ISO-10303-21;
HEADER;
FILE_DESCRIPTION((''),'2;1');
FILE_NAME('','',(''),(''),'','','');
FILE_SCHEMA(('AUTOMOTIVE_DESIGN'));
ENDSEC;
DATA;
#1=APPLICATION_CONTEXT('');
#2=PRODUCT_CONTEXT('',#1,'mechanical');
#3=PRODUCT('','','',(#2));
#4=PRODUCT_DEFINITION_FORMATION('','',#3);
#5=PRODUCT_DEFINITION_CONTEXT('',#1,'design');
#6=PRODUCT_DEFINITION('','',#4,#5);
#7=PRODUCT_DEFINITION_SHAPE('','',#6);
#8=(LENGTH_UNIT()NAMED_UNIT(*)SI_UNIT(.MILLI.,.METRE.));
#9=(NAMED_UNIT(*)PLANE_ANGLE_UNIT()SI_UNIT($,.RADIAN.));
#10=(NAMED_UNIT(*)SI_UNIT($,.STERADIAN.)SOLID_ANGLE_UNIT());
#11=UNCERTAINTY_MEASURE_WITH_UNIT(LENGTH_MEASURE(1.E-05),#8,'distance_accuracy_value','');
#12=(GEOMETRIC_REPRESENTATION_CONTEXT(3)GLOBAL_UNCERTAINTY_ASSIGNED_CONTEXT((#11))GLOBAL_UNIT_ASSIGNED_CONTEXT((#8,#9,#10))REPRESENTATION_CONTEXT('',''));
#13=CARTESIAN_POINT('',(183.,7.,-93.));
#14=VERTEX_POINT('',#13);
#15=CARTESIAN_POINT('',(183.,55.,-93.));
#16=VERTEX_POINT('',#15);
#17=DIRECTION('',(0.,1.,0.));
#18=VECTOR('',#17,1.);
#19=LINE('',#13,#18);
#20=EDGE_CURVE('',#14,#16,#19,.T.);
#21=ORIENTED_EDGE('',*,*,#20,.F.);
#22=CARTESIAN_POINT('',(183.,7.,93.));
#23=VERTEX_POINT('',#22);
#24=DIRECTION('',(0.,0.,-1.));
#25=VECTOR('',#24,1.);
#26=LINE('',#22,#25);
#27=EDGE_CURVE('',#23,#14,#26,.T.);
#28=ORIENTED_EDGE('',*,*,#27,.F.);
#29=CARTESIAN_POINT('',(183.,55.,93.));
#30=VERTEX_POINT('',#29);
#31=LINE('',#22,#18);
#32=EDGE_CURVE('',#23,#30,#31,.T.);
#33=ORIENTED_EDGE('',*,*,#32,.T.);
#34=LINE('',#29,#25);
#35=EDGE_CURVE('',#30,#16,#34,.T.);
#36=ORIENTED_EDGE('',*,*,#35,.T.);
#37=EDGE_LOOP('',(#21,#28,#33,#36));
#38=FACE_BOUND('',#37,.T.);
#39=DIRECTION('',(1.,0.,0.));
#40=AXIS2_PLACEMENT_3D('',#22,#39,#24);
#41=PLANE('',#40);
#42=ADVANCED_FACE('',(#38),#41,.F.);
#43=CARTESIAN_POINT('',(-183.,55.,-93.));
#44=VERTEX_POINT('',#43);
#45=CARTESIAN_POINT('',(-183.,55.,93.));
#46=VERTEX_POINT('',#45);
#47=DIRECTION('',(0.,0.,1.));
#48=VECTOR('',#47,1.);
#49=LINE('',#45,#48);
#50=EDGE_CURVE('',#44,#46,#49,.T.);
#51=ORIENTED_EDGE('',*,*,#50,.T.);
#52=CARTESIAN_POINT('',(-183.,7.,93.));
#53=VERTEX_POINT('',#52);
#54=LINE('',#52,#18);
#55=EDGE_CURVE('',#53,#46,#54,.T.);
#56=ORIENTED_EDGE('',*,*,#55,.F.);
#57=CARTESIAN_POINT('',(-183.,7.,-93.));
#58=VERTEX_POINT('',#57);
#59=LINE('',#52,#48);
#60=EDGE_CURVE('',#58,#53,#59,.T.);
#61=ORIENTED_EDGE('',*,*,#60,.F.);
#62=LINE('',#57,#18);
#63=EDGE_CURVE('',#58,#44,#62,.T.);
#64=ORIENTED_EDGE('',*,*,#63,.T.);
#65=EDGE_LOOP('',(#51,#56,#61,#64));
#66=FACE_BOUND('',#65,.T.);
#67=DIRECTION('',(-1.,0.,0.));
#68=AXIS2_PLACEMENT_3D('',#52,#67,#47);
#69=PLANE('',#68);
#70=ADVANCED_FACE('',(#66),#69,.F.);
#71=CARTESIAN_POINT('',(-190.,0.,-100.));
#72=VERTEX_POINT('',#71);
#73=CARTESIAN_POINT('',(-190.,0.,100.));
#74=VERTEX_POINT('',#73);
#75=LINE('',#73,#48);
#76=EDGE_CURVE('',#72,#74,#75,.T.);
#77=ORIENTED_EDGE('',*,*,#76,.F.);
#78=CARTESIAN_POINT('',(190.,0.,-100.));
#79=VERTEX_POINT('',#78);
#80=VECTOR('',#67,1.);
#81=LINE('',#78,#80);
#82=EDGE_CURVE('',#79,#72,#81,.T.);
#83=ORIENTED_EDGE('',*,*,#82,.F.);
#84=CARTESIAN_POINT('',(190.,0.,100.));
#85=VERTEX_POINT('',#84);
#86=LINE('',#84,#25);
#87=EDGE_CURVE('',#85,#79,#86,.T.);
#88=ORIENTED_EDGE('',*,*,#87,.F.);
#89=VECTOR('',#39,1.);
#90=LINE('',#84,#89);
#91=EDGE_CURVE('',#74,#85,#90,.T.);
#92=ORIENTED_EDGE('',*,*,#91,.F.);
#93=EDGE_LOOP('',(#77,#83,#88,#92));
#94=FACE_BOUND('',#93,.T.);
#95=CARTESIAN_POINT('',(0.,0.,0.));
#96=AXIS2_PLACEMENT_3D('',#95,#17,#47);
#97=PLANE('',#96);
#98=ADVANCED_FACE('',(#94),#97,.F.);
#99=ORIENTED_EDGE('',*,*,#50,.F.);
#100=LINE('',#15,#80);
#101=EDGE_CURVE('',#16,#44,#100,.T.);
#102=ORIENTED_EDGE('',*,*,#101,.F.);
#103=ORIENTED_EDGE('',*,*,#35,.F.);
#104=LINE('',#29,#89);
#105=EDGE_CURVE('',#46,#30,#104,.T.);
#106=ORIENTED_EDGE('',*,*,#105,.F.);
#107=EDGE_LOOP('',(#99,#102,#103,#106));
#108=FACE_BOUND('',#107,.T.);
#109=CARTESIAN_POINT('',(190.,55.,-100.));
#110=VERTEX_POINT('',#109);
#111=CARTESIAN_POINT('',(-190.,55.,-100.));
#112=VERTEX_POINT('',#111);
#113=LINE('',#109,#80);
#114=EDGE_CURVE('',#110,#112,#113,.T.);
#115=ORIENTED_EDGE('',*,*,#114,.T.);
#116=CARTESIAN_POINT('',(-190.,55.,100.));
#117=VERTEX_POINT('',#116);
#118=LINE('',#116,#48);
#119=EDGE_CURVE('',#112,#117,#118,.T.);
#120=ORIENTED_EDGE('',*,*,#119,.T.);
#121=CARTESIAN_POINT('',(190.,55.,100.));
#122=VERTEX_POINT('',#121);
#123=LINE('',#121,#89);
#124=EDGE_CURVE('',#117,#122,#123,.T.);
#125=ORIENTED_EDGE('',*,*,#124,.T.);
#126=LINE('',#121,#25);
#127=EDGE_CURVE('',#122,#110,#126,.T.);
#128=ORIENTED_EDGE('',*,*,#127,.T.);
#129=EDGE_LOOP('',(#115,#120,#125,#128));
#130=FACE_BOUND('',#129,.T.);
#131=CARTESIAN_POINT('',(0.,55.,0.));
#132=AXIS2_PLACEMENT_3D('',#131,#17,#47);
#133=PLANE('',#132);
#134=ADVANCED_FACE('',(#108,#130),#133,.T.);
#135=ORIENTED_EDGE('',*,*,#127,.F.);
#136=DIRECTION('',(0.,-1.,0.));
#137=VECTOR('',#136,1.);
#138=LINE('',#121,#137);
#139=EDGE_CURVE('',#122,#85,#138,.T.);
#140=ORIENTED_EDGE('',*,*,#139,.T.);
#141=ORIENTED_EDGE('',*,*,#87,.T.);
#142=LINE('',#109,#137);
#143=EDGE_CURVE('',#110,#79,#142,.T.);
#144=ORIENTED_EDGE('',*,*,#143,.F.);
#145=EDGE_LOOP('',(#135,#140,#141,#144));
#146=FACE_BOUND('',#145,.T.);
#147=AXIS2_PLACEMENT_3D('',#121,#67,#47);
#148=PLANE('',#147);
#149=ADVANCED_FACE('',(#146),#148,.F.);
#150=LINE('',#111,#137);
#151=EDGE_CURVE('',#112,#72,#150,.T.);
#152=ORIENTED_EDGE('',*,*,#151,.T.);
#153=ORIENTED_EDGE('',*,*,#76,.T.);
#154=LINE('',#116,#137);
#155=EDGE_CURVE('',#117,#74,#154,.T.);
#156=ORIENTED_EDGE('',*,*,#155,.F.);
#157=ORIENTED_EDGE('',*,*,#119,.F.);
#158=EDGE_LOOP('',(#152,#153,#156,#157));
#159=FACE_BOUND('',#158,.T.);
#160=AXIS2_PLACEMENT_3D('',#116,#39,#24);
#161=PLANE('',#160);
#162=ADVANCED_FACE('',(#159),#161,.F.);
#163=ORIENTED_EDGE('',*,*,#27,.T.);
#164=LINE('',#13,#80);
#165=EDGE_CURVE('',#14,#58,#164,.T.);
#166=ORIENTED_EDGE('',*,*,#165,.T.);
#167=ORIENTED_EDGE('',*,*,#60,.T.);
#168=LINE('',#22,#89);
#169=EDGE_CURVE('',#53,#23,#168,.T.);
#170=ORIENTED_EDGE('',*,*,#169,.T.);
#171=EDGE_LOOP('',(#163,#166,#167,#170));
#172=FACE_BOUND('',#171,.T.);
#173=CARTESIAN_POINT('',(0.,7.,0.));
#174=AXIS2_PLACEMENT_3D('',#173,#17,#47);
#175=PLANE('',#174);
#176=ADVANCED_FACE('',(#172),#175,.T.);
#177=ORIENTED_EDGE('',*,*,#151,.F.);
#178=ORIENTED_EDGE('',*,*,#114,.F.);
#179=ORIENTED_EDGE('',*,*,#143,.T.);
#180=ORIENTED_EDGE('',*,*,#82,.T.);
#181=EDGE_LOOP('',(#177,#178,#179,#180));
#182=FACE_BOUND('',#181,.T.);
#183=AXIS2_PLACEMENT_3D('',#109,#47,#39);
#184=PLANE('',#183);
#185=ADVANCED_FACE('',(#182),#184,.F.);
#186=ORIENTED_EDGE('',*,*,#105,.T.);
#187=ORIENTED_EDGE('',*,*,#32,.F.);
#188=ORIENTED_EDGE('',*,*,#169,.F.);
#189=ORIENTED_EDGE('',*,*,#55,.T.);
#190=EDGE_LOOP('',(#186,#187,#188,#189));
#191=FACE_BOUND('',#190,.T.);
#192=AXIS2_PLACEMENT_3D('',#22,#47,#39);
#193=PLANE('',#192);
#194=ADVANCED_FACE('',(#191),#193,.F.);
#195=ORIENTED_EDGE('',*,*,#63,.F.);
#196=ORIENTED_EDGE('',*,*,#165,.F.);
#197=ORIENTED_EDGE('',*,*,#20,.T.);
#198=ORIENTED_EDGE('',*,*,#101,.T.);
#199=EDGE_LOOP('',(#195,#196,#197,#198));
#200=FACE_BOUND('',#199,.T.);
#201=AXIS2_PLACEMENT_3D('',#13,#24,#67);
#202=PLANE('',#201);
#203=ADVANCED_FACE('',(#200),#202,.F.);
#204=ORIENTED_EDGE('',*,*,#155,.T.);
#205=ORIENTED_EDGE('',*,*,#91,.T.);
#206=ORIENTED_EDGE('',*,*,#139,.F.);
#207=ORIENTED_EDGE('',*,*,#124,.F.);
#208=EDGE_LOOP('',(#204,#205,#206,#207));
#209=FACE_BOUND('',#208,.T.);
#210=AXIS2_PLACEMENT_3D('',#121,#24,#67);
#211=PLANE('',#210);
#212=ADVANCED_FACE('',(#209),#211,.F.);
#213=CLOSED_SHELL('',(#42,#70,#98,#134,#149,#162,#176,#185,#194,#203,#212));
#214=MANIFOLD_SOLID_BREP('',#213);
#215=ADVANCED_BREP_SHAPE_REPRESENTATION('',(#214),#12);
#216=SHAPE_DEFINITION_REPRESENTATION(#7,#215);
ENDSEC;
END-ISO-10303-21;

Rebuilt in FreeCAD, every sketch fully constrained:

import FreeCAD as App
import Part
import Sketcher
from FreeCAD import Vector
Q = App.Units.Quantity

doc = App.newDocument("Part")
body = doc.addObject("PartDesign::Body", "Body")

# Sketch on XZ plane
sketch1 = doc.addObject("Sketcher::SketchObject", "Sketch")
body.addObject(sketch1)
sketch1.AttachmentSupport = (doc.XZ_Plane, [""])
sketch1.MapMode = "FlatFace"
sketch1.addGeometry(Part.LineSegment(Vector(-190, -100, 0), Vector(-190, 100, 0)), False)
sketch1.addGeometry(Part.LineSegment(Vector(-190, 100, 0), Vector(190, 100, 0)), False)
sketch1.addGeometry(Part.LineSegment(Vector(190, 100, 0), Vector(190, -100, 0)), False)
sketch1.addGeometry(Part.LineSegment(Vector(190, -100, 0), Vector(-190, -100, 0)), False)
sketch1.addConstraint(Sketcher.Constraint("Coincident", 0, 2, 1, 1))
sketch1.addConstraint(Sketcher.Constraint("Coincident", 1, 2, 2, 1))
sketch1.addConstraint(Sketcher.Constraint("Coincident", 2, 2, 3, 1))
sketch1.addConstraint(Sketcher.Constraint("Coincident", 3, 2, 0, 1))
sketch1.addConstraint(Sketcher.Constraint("Vertical", 0))
sketch1.addConstraint(Sketcher.Constraint("Horizontal", 1))
sketch1.addConstraint(Sketcher.Constraint("Vertical", 2))
sketch1.addConstraint(Sketcher.Constraint("Horizontal", 3))
sketch1.addConstraint(Sketcher.Constraint("Symmetric", 0, 2, 2, 2, -1, 1))
sketch1.addConstraint(Sketcher.Constraint("DistanceX", 1, 1, 1, 2, Q("380 mm")))
sketch1.addConstraint(Sketcher.Constraint("DistanceY", 0, 1, 0, 2, Q("200 mm")))
pad1 = doc.addObject("PartDesign::Pad", "Pad")
body.addObject(pad1)
pad1.Profile = sketch1
pad1.Length = 55
pad1.Reversed = True

# Sketch on XZ plane
sketch2 = doc.addObject("Sketcher::SketchObject", "Sketch001")
body.addObject(sketch2)
sketch2.AttachmentSupport = (doc.XZ_Plane, [""])
sketch2.MapMode = "FlatFace"
sketch2.AttachmentOffset = App.Placement(Vector(0, 0, -55), App.Rotation())
sketch2.addGeometry(Part.LineSegment(Vector(-183, -93, 0), Vector(-183, 93, 0)), False)
sketch2.addGeometry(Part.LineSegment(Vector(-183, 93, 0), Vector(183, 93, 0)), False)
sketch2.addGeometry(Part.LineSegment(Vector(183, 93, 0), Vector(183, -93, 0)), False)
sketch2.addGeometry(Part.LineSegment(Vector(183, -93, 0), Vector(-183, -93, 0)), False)
sketch2.addConstraint(Sketcher.Constraint("Coincident", 0, 2, 1, 1))
sketch2.addConstraint(Sketcher.Constraint("Coincident", 1, 2, 2, 1))
sketch2.addConstraint(Sketcher.Constraint("Coincident", 2, 2, 3, 1))
sketch2.addConstraint(Sketcher.Constraint("Coincident", 3, 2, 0, 1))
sketch2.addConstraint(Sketcher.Constraint("Vertical", 0))
sketch2.addConstraint(Sketcher.Constraint("Horizontal", 1))
sketch2.addConstraint(Sketcher.Constraint("Vertical", 2))
sketch2.addConstraint(Sketcher.Constraint("Horizontal", 3))
sketch2.addConstraint(Sketcher.Constraint("Symmetric", 0, 2, 2, 2, -1, 1))
sketch2.addConstraint(Sketcher.Constraint("DistanceX", 1, 1, 1, 2, Q("366 mm")))
sketch2.addConstraint(Sketcher.Constraint("DistanceY", 0, 1, 0, 2, Q("186 mm")))
pocket1 = doc.addObject("PartDesign::Pocket", "Pocket")
body.addObject(pocket1)
pocket1.Profile = sketch2
pocket1.Length = 48
pocket1.Reversed = True

doc.recompute()
